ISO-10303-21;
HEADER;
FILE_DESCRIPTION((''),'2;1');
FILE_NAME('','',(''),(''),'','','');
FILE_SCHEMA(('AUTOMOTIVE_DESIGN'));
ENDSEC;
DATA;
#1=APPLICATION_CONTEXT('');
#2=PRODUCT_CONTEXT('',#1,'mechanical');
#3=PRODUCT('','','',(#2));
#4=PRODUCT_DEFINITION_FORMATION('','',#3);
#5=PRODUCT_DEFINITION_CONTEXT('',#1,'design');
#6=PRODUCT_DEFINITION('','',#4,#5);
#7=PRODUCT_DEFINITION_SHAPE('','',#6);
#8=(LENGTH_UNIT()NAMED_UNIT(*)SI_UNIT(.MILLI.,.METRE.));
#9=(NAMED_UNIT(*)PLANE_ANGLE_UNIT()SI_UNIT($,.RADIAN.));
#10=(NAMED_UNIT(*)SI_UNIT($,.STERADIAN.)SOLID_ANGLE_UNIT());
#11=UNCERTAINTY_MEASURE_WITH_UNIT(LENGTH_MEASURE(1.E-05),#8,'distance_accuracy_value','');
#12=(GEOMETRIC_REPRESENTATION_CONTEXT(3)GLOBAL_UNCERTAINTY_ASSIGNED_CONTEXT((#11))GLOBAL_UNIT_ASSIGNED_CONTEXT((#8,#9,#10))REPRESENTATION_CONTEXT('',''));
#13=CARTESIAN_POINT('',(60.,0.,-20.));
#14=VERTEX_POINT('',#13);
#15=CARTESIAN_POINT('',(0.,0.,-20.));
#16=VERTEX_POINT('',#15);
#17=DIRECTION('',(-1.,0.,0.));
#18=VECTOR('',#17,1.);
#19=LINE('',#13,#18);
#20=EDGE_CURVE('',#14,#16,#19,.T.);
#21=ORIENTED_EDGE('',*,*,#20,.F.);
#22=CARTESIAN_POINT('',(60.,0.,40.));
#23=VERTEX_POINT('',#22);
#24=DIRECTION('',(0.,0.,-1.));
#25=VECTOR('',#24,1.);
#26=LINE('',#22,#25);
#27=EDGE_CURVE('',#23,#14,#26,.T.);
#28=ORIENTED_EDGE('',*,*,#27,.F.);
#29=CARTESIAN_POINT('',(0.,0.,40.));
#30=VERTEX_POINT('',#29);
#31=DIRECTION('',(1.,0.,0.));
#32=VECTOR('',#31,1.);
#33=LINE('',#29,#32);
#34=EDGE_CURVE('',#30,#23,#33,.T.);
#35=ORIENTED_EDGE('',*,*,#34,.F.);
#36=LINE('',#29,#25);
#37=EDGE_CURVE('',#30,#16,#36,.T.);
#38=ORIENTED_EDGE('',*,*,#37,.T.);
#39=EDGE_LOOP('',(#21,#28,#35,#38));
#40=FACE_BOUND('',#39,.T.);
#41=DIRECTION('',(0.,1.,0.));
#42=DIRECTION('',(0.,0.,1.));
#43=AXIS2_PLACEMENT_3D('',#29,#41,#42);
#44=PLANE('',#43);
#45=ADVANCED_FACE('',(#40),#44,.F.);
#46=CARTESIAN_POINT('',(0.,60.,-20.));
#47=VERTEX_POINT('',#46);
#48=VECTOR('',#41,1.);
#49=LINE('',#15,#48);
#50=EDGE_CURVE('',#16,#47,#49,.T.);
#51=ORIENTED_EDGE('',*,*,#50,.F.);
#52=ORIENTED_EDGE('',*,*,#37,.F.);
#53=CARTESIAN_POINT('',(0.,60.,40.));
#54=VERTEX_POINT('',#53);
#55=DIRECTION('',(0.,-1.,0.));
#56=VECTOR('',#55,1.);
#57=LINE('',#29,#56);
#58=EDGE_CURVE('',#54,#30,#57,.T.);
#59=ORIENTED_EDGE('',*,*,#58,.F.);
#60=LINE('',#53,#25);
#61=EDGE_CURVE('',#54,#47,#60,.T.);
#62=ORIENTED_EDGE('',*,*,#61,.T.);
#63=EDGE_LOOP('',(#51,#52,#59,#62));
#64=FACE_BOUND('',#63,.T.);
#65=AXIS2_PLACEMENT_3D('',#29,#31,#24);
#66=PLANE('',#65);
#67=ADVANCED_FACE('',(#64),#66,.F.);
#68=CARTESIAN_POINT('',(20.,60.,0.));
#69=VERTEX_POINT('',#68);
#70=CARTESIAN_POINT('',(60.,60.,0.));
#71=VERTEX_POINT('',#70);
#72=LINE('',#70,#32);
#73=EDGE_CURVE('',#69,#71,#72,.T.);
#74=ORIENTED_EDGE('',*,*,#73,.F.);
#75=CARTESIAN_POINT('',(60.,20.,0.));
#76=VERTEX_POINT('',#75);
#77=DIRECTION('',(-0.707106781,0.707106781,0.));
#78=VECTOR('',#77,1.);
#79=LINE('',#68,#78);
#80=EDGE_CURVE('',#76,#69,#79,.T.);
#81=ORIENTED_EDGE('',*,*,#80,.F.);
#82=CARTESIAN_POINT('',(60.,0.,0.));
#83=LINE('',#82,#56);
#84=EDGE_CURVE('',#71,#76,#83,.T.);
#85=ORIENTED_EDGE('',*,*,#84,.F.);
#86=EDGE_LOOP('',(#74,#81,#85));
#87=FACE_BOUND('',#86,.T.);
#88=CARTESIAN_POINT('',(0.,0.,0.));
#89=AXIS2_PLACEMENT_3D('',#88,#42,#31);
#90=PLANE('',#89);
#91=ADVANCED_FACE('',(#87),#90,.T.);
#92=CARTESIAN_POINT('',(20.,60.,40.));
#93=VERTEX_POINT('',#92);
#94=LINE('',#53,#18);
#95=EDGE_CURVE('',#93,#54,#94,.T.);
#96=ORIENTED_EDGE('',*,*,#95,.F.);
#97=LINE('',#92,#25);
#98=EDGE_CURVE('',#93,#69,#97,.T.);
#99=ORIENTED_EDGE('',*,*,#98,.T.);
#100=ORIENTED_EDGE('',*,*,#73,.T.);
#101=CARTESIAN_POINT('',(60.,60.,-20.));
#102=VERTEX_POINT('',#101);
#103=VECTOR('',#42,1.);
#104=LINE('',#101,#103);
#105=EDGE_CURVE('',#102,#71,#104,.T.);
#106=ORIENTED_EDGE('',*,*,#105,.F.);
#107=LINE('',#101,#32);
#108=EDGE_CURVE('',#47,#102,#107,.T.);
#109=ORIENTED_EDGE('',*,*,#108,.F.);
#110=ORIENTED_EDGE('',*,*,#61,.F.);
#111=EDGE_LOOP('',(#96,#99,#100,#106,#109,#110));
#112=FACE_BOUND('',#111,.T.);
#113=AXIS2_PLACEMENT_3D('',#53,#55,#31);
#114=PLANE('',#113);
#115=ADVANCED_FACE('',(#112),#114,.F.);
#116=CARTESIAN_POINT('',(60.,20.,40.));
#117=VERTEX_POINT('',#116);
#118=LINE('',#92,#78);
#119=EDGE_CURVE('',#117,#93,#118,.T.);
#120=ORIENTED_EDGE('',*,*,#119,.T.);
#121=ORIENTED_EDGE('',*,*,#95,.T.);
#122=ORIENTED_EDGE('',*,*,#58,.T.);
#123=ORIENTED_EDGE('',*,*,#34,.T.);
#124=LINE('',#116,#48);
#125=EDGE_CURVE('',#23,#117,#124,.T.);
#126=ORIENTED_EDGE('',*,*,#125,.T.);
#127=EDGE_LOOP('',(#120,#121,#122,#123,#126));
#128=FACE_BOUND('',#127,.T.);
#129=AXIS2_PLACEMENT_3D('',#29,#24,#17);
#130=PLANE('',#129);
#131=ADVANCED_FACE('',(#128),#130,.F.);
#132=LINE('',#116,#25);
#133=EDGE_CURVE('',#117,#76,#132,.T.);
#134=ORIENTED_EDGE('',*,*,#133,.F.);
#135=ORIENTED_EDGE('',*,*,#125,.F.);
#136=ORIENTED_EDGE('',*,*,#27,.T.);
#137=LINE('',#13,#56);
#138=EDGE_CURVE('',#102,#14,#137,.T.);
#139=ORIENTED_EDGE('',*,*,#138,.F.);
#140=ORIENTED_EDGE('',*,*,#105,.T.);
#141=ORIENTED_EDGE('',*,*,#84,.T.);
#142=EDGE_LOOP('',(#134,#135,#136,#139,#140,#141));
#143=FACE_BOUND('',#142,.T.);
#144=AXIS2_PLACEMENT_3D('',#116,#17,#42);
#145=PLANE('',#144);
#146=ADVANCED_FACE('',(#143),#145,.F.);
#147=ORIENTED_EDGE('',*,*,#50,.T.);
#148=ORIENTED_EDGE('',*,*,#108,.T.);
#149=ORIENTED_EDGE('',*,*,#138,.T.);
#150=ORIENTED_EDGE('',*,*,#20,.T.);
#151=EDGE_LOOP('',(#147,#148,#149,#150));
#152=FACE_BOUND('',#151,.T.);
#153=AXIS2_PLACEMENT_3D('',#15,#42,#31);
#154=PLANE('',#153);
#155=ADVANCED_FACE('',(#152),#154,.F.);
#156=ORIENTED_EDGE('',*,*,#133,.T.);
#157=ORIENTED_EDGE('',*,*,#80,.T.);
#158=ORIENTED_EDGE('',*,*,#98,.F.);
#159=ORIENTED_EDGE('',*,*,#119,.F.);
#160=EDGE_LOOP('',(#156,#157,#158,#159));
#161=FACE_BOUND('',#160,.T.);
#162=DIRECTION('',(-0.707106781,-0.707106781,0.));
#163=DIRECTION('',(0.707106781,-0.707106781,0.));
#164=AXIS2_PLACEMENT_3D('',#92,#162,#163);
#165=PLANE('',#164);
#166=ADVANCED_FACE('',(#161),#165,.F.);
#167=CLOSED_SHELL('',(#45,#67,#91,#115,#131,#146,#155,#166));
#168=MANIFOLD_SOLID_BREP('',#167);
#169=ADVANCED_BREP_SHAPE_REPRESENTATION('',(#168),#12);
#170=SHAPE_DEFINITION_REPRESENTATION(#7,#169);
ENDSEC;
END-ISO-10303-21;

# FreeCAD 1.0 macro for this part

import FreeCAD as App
import Part
import Sketcher
Q = App.Units.Quantity


def add_polygon(sketch, points):
    """Adds a closed chain of lines whose ends are joined by coincident constraints."""
    first, n = sketch.GeometryCount, len(points)
    for a, b in zip(points, points[1:] + points[:1]):
        sketch.addGeometry(Part.LineSegment(App.Vector(*a, 0), App.Vector(*b, 0)), False)
    for i in range(n):
        sketch.addConstraint(Sketcher.Constraint("Coincident", first + i, 2, first + (i + 1) % n, 1))

doc = App.newDocument("Part")
body = doc.addObject("PartDesign::Body", "Body")

sketch1 = body.newObject("Sketcher::SketchObject", "Sketch")
sketch1.AttachmentSupport = (doc.getObject("XY_Plane"), [""])
sketch1.MapMode = "FlatFace"
add_polygon(sketch1, [(0, 0), (60, 0), (60, 20), (20, 60), (0, 60)])
sketch1.addConstraint(Sketcher.Constraint("Horizontal", 0))
sketch1.addConstraint(Sketcher.Constraint("Vertical", 1))
sketch1.addConstraint(Sketcher.Constraint("Horizontal", 3))
sketch1.addConstraint(Sketcher.Constraint("Vertical", 4))
sketch1.addConstraint(Sketcher.Constraint("Coincident", 4, 2, -1, 1))
sketch1.addConstraint(Sketcher.Constraint("Equal", 3, 1))
sketch1.addConstraint(Sketcher.Constraint("Equal", 0, 4))
sketch1.addConstraint(Sketcher.Constraint("DistanceX", 0, 1, 0, 2, Q("60 mm")))
sketch1.addConstraint(Sketcher.Constraint("DistanceX", 3, 2, 3, 1, Q("20 mm")))
pad1 = body.newObject("PartDesign::Pad", "Pad")
pad1.Profile = sketch1
pad1.Length = 40

sketch2 = body.newObject("Sketcher::SketchObject", "Sketch001")
sketch2.AttachmentSupport = (doc.getObject("XY_Plane"), [""])
sketch2.MapMode = "FlatFace"
add_polygon(sketch2, [(60, 60), (60, 0), (0, 0), (0, 60)])
sketch2.addConstraint(Sketcher.Constraint("Vertical", 0))
sketch2.addConstraint(Sketcher.Constraint("Horizontal", 1))
sketch2.addConstraint(Sketcher.Constraint("Vertical", 2))
sketch2.addConstraint(Sketcher.Constraint("Horizontal", 3))
sketch2.addConstraint(Sketcher.Constraint("Coincident", 1, 2, -1, 1))
sketch2.addConstraint(Sketcher.Constraint("Equal", 3, 0))
sketch2.addConstraint(Sketcher.Constraint("DistanceX", 1, 2, 1, 1, Q("60 mm")))
pad2 = body.newObject("PartDesign::Pad", "Pad001")
pad2.Profile = sketch2
pad2.Length = 20
pad2.Reversed = True

doc.recompute()
